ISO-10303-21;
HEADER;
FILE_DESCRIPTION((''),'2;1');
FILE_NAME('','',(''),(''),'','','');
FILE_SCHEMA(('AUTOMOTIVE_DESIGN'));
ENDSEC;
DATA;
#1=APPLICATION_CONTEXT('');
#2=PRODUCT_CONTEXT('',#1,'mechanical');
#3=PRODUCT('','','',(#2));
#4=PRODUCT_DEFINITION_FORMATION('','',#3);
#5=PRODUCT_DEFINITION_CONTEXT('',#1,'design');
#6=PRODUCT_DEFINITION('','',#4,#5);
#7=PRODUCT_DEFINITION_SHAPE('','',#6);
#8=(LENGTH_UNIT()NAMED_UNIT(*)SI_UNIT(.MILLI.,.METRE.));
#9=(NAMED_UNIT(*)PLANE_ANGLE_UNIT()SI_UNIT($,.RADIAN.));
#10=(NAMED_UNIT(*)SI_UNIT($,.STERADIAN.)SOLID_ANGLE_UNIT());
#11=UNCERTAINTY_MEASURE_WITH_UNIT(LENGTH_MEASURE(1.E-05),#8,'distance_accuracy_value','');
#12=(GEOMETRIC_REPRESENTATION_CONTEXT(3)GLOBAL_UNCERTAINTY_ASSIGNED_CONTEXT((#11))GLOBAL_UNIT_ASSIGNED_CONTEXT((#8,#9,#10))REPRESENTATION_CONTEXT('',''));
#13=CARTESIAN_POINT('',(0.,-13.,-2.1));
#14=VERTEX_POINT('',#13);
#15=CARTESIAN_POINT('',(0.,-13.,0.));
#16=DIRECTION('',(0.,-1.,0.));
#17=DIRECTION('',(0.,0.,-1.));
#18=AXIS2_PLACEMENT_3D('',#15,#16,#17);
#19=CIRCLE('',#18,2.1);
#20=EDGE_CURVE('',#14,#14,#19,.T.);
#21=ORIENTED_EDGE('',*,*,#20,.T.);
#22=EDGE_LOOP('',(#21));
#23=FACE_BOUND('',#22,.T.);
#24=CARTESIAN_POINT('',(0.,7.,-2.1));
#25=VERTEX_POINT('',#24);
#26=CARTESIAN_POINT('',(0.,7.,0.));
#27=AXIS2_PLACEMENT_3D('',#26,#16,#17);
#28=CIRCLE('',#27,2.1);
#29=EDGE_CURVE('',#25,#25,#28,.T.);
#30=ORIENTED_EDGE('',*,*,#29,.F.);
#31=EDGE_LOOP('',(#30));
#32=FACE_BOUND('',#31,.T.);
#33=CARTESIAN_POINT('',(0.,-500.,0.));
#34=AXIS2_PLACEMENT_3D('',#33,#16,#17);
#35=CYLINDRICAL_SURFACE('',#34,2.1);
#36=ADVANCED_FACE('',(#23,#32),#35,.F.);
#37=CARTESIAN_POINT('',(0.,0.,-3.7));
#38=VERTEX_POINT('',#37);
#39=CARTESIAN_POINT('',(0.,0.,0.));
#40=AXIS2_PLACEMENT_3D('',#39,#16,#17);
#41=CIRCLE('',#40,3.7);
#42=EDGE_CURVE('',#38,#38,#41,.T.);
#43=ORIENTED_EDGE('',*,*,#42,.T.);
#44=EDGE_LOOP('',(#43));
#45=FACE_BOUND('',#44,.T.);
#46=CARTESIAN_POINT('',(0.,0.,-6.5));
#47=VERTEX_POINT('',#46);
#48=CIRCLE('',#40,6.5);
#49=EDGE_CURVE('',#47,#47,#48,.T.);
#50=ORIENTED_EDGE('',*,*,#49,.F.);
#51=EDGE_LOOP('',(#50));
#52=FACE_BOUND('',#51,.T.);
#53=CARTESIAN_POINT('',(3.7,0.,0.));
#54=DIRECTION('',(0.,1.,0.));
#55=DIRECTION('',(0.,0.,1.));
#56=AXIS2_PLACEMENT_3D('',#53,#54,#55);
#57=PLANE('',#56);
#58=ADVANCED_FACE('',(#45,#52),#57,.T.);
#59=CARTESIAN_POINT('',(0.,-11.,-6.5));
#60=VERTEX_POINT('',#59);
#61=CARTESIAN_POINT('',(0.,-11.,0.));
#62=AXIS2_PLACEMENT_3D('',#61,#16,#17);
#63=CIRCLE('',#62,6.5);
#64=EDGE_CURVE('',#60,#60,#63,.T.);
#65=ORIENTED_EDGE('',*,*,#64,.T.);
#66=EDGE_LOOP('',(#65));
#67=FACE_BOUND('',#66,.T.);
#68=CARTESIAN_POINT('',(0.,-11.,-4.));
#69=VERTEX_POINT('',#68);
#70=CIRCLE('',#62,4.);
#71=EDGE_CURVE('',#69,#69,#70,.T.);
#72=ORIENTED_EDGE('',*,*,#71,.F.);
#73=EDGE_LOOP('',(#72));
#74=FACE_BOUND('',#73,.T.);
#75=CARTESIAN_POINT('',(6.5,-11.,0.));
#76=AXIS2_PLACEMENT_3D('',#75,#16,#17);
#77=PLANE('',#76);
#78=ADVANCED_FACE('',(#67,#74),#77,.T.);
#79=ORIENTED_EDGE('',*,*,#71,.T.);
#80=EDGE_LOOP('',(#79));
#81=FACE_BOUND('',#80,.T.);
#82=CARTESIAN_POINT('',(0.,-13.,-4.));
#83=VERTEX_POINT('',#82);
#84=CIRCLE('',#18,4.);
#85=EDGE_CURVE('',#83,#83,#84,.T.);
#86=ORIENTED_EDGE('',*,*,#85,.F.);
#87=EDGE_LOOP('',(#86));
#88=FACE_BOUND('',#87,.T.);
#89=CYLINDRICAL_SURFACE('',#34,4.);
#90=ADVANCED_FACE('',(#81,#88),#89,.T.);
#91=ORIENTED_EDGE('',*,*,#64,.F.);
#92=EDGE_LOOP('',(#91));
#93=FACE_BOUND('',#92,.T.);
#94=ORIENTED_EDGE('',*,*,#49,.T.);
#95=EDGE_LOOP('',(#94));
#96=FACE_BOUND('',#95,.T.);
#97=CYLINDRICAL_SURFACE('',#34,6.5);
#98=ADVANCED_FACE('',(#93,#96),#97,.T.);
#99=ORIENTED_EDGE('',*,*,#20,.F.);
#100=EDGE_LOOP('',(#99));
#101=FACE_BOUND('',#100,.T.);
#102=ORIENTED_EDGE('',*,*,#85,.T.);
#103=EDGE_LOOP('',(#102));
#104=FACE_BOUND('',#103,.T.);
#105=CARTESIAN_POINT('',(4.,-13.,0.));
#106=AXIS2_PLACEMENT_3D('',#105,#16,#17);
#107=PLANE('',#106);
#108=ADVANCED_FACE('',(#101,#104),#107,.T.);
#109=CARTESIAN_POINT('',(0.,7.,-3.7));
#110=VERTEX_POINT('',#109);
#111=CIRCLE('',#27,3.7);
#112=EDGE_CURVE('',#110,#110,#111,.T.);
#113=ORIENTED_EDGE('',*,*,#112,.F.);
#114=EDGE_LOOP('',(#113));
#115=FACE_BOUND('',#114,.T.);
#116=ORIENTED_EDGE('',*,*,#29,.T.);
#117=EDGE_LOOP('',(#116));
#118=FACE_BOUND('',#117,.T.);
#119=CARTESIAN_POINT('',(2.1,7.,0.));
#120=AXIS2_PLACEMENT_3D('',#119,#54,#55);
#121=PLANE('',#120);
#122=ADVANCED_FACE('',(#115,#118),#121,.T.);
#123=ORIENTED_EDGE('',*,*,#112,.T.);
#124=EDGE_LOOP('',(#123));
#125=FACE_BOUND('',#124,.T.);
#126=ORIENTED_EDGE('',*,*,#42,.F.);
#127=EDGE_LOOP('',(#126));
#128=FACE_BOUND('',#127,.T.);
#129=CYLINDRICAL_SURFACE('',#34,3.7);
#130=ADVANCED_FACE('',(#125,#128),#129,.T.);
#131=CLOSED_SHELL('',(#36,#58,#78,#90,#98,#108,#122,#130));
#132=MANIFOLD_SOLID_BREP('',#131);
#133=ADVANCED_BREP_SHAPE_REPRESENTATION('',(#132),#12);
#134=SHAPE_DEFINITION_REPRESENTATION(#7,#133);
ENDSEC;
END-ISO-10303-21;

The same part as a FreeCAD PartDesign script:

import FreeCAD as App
import Part
import Sketcher
from FreeCAD import Vector
Q = App.Units.Quantity


def add_polygon(sketch, points):
    """Adds a closed chain of lines whose ends are joined by coincident constraints."""
    first, n = sketch.GeometryCount, len(points)
    for a, b in zip(points, points[1:] + points[:1]):
        sketch.addGeometry(Part.LineSegment(App.Vector(*a, 0), App.Vector(*b, 0)), False)
    for i in range(n):
        sketch.addConstraint(Sketcher.Constraint("Coincident", first + i, 2, first + (i + 1) % n, 1))

doc = App.newDocument("Part")
body = doc.addObject("PartDesign::Body", "Body")

# Sketch on XY plane
sketch1 = doc.addObject("Sketcher::SketchObject", "Sketch")
body.addObject(sketch1)
sketch1.AttachmentSupport = (doc.XY_Plane, [""])
sketch1.MapMode = "FlatFace"
add_polygon(sketch1, [(2.1, 7), (2.1, -13), (4, -13), (4, -11), (6.5, -11), (6.5, 0), (3.7, 0), (3.7, 7)])  # lines 0-7
sketch1.addConstraint([
    Sketcher.Constraint("Vertical", 0),
    Sketcher.Constraint("Horizontal", 1),
    Sketcher.Constraint("Vertical", 2),
    Sketcher.Constraint("Horizontal", 3),
    Sketcher.Constraint("Vertical", 4),
    Sketcher.Constraint("Horizontal", 5),
    Sketcher.Constraint("Vertical", 6),
    Sketcher.Constraint("Horizontal", 7),
    Sketcher.Constraint("PointOnObject", 4, 2, -1),
    Sketcher.Constraint("DistanceY", 0, 2, 0, 1, Q("20 mm")),
    Sketcher.Constraint("DistanceY", 2, 1, 2, 2, Q("2 mm")),
    Sketcher.Constraint("DistanceY", 4, 1, 4, 2, Q("11 mm")),
    Sketcher.Constraint("DistanceX", 1, 1, 1, 2, Q("1.9 mm")),
    Sketcher.Constraint("DistanceX", 3, 1, 3, 2, Q("2.5 mm")),
    Sketcher.Constraint("DistanceX", 5, 2, 5, 1, Q("2.8 mm")),
    Sketcher.Constraint("DistanceX", -1, 1, 1, 2, Q("4 mm")),
])
revolution = doc.addObject("PartDesign::Revolution", "Revolution")
body.addObject(revolution)
revolution.Profile = sketch1
revolution.ReferenceAxis = (sketch1, ["V_Axis"])
revolution.Angle = 360

doc.recompute()
